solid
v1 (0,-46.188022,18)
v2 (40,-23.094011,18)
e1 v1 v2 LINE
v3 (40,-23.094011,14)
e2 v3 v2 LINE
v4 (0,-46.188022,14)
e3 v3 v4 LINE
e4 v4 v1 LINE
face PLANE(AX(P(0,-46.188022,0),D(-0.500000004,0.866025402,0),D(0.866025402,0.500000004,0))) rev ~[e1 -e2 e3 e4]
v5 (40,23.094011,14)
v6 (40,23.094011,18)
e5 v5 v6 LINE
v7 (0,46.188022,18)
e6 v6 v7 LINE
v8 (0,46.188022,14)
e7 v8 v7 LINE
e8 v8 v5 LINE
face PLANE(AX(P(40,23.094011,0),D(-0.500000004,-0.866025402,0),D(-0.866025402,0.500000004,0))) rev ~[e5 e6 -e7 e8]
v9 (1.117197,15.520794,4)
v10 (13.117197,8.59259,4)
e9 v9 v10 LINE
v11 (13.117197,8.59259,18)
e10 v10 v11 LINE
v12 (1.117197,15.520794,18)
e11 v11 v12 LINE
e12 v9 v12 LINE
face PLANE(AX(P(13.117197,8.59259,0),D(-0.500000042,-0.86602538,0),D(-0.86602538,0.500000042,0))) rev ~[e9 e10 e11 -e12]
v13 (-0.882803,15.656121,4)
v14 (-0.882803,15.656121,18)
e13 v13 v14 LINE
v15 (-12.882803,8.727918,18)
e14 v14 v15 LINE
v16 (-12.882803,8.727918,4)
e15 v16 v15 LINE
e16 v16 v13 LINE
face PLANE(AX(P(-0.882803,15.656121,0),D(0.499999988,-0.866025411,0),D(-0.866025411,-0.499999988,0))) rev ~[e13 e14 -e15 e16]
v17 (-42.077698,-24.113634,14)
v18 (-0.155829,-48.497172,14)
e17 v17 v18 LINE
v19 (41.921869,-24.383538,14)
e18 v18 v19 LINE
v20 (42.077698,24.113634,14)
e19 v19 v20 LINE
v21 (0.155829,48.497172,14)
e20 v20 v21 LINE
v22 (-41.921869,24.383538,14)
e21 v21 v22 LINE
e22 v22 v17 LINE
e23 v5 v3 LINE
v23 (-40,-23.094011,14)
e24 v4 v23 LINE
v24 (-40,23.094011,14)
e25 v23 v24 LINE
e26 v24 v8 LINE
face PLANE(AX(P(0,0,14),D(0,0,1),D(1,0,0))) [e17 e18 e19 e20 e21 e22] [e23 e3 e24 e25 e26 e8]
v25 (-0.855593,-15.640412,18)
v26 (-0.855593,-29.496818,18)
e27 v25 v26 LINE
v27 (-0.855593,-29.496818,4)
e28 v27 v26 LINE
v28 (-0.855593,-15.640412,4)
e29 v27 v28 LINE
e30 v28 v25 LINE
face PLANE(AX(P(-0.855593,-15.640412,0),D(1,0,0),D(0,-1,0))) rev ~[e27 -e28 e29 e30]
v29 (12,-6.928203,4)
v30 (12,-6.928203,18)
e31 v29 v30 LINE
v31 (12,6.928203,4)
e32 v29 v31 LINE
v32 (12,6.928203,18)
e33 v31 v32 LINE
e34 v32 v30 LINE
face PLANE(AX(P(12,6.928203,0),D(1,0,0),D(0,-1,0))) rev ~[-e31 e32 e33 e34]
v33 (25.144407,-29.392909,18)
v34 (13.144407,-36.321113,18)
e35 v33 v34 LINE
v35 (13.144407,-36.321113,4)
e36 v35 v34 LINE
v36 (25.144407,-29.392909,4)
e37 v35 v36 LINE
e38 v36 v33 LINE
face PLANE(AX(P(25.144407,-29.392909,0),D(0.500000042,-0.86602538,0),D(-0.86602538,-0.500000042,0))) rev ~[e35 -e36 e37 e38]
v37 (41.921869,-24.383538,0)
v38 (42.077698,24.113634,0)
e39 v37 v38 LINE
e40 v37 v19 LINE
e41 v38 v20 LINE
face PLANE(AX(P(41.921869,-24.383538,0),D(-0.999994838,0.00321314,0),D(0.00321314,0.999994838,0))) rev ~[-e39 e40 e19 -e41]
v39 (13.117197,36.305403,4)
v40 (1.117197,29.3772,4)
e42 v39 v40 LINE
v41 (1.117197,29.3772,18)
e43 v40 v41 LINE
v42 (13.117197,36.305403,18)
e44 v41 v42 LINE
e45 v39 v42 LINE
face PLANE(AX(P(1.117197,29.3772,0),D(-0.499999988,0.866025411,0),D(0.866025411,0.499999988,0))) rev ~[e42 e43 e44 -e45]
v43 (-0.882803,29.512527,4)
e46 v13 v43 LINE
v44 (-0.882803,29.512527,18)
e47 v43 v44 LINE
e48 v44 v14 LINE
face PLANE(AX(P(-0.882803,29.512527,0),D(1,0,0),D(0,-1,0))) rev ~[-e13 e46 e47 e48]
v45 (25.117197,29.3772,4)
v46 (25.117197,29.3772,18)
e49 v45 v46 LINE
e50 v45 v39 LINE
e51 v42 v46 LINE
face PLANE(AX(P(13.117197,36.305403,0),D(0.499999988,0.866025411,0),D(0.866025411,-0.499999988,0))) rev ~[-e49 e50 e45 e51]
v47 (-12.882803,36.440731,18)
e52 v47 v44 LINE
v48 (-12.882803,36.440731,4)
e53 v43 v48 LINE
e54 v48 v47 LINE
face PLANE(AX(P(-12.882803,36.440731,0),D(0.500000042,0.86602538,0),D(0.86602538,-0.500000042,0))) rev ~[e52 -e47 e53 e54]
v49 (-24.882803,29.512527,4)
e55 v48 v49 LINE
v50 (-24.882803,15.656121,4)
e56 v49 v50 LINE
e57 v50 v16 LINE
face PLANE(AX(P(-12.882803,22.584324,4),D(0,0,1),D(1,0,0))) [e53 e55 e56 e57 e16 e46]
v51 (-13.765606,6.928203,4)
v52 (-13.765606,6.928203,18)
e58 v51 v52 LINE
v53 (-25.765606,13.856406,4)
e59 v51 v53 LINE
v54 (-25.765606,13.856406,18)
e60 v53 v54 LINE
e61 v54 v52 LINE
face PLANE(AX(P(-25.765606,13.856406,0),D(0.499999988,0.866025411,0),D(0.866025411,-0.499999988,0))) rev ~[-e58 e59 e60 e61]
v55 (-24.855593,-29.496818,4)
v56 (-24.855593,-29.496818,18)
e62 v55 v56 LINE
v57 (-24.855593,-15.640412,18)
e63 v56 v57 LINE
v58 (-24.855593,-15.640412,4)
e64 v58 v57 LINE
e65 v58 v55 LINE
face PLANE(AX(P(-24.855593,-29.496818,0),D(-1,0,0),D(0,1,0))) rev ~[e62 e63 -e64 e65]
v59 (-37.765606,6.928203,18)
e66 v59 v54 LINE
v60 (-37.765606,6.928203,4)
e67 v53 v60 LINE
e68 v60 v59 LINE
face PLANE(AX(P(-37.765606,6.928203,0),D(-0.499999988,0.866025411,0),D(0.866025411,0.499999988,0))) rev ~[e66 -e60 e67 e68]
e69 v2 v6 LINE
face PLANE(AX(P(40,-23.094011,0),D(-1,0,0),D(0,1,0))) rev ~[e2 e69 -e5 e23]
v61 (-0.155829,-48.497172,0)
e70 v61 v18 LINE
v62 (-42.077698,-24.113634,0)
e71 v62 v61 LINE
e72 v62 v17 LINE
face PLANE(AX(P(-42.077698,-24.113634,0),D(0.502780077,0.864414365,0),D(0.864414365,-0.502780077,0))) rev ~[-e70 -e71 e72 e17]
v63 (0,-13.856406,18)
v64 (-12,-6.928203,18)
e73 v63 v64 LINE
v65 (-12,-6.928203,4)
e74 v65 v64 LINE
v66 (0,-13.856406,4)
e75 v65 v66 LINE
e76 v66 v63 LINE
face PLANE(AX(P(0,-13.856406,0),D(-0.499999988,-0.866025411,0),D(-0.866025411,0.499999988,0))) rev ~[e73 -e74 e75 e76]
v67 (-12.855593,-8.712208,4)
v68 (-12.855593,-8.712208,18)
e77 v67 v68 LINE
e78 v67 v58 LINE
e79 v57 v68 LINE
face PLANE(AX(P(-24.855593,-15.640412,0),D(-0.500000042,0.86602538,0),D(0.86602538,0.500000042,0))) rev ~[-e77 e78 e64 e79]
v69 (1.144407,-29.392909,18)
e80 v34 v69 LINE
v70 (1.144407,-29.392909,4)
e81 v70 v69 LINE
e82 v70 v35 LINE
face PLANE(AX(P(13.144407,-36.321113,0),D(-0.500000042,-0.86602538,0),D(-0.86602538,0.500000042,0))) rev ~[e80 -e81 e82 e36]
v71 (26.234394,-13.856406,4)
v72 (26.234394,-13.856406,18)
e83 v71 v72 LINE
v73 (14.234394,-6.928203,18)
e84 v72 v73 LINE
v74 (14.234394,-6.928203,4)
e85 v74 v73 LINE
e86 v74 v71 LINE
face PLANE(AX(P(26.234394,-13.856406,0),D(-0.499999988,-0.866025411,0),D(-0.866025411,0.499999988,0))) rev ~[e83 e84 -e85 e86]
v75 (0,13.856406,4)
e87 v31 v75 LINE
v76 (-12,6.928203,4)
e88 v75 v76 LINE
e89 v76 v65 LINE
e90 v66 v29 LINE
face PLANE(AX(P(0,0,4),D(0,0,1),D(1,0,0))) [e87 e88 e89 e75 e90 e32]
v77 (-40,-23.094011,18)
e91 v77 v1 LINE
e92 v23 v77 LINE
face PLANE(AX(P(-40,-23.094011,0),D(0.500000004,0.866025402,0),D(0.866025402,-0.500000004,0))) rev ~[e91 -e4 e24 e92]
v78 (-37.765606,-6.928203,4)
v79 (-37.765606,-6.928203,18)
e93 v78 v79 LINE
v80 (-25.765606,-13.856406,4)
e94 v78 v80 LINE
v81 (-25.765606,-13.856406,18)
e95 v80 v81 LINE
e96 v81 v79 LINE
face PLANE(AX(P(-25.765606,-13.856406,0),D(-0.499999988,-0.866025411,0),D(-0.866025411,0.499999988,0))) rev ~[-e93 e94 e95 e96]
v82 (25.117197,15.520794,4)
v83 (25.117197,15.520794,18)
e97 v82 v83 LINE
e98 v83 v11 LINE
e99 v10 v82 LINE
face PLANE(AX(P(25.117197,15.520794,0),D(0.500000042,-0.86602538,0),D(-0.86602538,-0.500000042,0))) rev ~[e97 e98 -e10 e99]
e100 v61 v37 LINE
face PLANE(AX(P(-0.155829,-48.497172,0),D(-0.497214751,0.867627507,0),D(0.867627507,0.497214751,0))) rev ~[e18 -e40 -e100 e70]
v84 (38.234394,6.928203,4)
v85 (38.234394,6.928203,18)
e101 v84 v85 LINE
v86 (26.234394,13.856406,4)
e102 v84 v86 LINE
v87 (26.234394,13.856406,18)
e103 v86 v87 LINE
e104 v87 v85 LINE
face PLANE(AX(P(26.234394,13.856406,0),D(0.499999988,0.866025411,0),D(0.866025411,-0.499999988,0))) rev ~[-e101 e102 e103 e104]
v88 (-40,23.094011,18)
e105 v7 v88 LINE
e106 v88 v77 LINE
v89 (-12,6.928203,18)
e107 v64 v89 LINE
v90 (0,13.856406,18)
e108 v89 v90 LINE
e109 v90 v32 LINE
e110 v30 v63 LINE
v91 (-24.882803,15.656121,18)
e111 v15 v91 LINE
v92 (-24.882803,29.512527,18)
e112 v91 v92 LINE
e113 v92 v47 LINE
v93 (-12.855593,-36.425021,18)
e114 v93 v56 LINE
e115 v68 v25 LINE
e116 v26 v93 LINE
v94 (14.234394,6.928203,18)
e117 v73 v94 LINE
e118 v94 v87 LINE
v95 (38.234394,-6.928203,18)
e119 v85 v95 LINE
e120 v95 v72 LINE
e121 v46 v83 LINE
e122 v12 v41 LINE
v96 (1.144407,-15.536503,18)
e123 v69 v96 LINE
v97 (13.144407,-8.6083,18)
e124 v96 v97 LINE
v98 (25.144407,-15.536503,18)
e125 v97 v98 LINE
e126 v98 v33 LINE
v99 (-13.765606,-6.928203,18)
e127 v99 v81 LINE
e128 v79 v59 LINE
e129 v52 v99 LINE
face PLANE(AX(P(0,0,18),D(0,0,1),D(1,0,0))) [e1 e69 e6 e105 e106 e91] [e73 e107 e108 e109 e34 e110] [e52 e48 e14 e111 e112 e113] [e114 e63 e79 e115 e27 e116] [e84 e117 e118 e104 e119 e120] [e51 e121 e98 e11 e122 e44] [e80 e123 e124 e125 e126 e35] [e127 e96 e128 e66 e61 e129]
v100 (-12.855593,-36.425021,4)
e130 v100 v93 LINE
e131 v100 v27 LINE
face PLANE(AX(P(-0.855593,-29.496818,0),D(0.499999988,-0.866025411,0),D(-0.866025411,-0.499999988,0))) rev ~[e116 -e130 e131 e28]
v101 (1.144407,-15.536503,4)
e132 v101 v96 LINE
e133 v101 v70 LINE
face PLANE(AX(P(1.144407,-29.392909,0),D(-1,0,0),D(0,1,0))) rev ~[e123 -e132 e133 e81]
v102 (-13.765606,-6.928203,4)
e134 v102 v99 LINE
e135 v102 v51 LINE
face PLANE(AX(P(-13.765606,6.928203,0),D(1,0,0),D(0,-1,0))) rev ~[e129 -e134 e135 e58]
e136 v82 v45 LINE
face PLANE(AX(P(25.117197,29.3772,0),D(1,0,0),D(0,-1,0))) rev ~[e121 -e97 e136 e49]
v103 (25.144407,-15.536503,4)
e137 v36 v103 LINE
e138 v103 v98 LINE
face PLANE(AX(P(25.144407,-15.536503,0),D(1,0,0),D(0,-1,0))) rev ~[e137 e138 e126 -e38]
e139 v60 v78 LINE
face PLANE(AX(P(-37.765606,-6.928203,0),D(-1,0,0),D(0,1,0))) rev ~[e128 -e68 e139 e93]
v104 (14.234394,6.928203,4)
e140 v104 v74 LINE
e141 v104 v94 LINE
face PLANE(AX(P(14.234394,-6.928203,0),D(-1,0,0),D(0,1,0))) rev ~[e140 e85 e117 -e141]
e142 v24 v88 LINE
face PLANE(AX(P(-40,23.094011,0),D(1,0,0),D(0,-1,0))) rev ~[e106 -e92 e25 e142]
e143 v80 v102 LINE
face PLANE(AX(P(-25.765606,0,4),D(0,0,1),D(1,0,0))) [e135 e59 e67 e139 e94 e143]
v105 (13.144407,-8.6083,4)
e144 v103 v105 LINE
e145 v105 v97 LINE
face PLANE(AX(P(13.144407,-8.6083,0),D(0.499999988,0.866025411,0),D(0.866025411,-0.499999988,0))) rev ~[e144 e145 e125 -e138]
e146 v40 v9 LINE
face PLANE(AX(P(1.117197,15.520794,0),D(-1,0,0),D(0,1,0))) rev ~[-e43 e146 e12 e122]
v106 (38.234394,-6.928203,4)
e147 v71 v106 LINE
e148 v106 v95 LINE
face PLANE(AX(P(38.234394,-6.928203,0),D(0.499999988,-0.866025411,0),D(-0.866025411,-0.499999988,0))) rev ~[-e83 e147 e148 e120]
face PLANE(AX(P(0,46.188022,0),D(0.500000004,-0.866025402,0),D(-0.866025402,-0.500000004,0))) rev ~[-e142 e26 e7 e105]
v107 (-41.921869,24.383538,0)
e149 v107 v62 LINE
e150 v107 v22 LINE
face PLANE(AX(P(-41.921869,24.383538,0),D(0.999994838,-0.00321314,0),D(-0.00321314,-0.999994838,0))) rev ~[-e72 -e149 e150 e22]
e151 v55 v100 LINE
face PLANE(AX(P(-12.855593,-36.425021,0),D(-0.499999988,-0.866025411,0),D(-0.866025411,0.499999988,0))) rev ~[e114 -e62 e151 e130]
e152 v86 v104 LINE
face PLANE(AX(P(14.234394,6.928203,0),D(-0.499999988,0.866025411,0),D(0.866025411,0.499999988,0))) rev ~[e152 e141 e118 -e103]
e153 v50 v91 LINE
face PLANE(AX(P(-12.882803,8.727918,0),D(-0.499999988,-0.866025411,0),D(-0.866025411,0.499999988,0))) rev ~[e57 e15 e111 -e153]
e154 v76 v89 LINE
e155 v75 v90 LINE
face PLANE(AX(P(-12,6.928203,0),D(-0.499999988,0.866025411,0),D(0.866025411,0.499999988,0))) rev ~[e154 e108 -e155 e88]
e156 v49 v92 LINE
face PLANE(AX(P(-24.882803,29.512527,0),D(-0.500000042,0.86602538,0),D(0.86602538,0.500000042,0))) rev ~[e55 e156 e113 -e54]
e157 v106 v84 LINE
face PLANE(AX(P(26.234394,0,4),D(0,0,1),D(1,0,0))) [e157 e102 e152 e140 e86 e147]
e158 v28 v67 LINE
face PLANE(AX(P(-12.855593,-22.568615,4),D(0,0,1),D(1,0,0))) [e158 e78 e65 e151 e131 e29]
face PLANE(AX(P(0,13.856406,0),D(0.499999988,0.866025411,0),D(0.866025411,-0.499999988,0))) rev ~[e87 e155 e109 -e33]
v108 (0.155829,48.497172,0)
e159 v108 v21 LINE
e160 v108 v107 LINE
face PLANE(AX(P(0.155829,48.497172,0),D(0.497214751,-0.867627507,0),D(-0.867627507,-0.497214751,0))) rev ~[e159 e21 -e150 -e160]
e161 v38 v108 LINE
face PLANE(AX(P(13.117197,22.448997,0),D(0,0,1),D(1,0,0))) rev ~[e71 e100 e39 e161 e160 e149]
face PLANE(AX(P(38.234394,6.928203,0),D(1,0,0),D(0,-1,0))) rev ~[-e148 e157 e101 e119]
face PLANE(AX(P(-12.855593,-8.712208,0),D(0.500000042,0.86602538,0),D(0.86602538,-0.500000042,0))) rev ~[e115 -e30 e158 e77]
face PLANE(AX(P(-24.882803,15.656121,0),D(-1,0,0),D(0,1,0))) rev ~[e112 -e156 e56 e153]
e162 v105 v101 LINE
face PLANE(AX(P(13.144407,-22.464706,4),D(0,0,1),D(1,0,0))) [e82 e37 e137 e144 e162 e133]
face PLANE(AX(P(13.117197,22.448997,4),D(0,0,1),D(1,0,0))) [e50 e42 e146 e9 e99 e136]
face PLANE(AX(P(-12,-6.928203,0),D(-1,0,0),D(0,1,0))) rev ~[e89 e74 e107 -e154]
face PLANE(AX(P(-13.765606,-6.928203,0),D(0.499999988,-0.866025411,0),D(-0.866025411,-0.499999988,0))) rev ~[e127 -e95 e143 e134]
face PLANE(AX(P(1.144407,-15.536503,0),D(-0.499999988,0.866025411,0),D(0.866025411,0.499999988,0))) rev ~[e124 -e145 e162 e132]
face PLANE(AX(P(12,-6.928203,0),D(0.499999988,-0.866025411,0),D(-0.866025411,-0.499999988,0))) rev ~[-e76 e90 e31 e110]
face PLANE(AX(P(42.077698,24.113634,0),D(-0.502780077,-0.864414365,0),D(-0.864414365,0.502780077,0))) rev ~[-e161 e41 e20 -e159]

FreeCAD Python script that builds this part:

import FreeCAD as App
import Part
import Sketcher
from FreeCAD import Vector
Q = App.Units.Quantity

doc = App.newDocument("Part")
params = doc.addObject("Spreadsheet::Sheet", "Params")
for row, (alias, value) in enumerate([
    ("pad1_length", "14 mm"),
    ("pad2_length", "18 mm"),
    ("pad3_length", "4 mm"),
], start=1):
    params.set(f"A{row}", alias)
    params.set(f"B{row}", "=" + value)
    params.setAlias(f"B{row}", alias)

body = doc.addObject("PartDesign::Body", "Body")

# Sketch on XY plane
sketch1 = body.newObject("Sketcher::SketchObject", "Sketch")
sketch1.AttachmentSupport = (doc.getObject("XY_Plane"), [""])
sketch1.MapMode = "FlatFace"
sketch1.addGeometry([
    Part.LineSegment(Vector(42.077698, 24.113634, 0), Vector(0.155829, 48.497172, 0)),  # 0
    Part.LineSegment(Vector(0.155829, 48.497172, 0), Vector(-41.921869, 24.383538, 0)),  # 1
    Part.LineSegment(Vector(-41.921869, 24.383538, 0), Vector(-42.077698, -24.113634, 0)),  # 2
    Part.LineSegment(Vector(-42.077698, -24.113634, 0), Vector(-0.155829, -48.497172, 0)),  # 3
    Part.LineSegment(Vector(-0.155829, -48.497172, 0), Vector(41.921869, -24.383538, 0)),  # 4
    Part.LineSegment(Vector(41.921869, -24.383538, 0), Vector(42.077698, 24.113634, 0)),  # 5
    Part.LineSegment(Vector(-40, -23.094011, 0), Vector(-40, 23.094011, 0)),  # 6
    Part.LineSegment(Vector(-40, 23.094011, 0), Vector(0, 46.188022, 0)),  # 7
    Part.LineSegment(Vector(0, 46.188022, 0), Vector(40, 23.094011, 0)),  # 8
    Part.LineSegment(Vector(40, 23.094011, 0), Vector(40, -23.094011, 0)),  # 9
    Part.LineSegment(Vector(40, -23.094011, 0), Vector(0, -46.188022, 0)),  # 10
    Part.LineSegment(Vector(0, -46.188022, 0), Vector(-40, -23.094011, 0)),  # 11
], False)
sketch1.addConstraint([
    Sketcher.Constraint("Coincident", 0, 2, 1, 1),
    Sketcher.Constraint("Coincident", 1, 2, 2, 1),
    Sketcher.Constraint("Coincident", 2, 2, 3, 1),
    Sketcher.Constraint("Coincident", 3, 2, 4, 1),
    Sketcher.Constraint("Coincident", 4, 2, 5, 1),
    Sketcher.Constraint("Coincident", 5, 2, 0, 1),
    Sketcher.Constraint("Coincident", 6, 2, 7, 1),
    Sketcher.Constraint("Coincident", 7, 2, 8, 1),
    Sketcher.Constraint("Coincident", 8, 2, 9, 1),
    Sketcher.Constraint("Coincident", 9, 2, 10, 1),
    Sketcher.Constraint("Coincident", 10, 2, 11, 1),
    Sketcher.Constraint("Coincident", 11, 2, 6, 1),
    Sketcher.Constraint("Vertical", 6),
    Sketcher.Constraint("Vertical", 9),
    Sketcher.Constraint("Symmetric", 0, 2, 3, 2, -1, 1),
    Sketcher.Constraint("Symmetric", 1, 2, 4, 2, -1, 1),
    Sketcher.Constraint("Symmetric", 2, 2, 5, 2, -1, 1),
    Sketcher.Constraint("Symmetric", 6, 2, 9, 2, -1, 1),
    Sketcher.Constraint("Symmetric", 7, 2, 10, 2, -1, 1),
    Sketcher.Constraint("PointOnObject", 7, 2, -2),
    Sketcher.Constraint("Parallel", 8, 11),
    Sketcher.Constraint("Horizontal", 6, 2, 8, 2),
    Sketcher.Constraint("Equal", 0, 1),
    Sketcher.Constraint("Equal", 1, 2),
    Sketcher.Constraint("Angle", 7, Q("30 deg")),
    Sketcher.Constraint("DistanceX", 6, 2, -1, 1, Q("40 mm")),
    Sketcher.Constraint("DistanceY", 6, 1, 6, 2, Q("46.188022 mm")),
    Sketcher.Constraint("DistanceX", 6, 2, 5, 2, Q("82.077698 mm")),
    Sketcher.Constraint("DistanceX", -1, 1, 0, 2, Q("0.155829 mm")),
    Sketcher.Constraint("DistanceX", 1, 2, -1, 1, Q("41.921869 mm")),
    Sketcher.Constraint("DistanceY", -1, 1, 1, 2, Q("24.383538 mm")),
])
pad1 = body.newObject("PartDesign::Pad", "Pad")
pad1.Profile = sketch1
pad1.setExpression("Length", "Params.pad1_length")

# Sketch on XY plane
sketch2 = body.newObject("Sketcher::SketchObject", "Sketch001")
sketch2.AttachmentSupport = (doc.getObject("XY_Plane"), [""])
sketch2.MapMode = "FlatFace"
sketch2.addGeometry([
    Part.LineSegment(Vector(40, 23.094011, 0), Vector(0, 46.188022, 0)),  # 0
    Part.LineSegment(Vector(0, 46.188022, 0), Vector(-40, 23.094011, 0)),  # 1
    Part.LineSegment(Vector(-40, 23.094011, 0), Vector(-40, -23.094011, 0)),  # 2
    Part.LineSegment(Vector(-40, -23.094011, 0), Vector(0, -46.188022, 0)),  # 3
    Part.LineSegment(Vector(0, -46.188022, 0), Vector(40, -23.094011, 0)),  # 4
    Part.LineSegment(Vector(40, -23.094011, 0), Vector(40, 23.094011, 0)),  # 5
    Part.LineSegment(Vector(-24.855593, -15.640412, 0), Vector(-12.855593, -8.712208, 0)),  # 6
    Part.LineSegment(Vector(-12.855593, -8.712208, 0), Vector(-0.855593, -15.640412, 0)),  # 7
    Part.LineSegment(Vector(-0.855593, -15.640412, 0), Vector(-0.855593, -29.496818, 0)),  # 8
    Part.LineSegment(Vector(-0.855593, -29.496818, 0), Vector(-12.855593, -36.425021, 0)),  # 9
    Part.LineSegment(Vector(-12.855593, -36.425021, 0), Vector(-24.855593, -29.496818, 0)),  # 10
    Part.LineSegment(Vector(-24.855593, -29.496818, 0), Vector(-24.855593, -15.640412, 0)),  # 11
    Part.LineSegment(Vector(-37.765606, 6.928203, 0), Vector(-25.765606, 13.856406, 0)),  # 12
    Part.LineSegment(Vector(-25.765606, 13.856406, 0), Vector(-13.765606, 6.928203, 0)),  # 13
    Part.LineSegment(Vector(-13.765606, 6.928203, 0), Vector(-13.765606, -6.928203, 0)),  # 14
    Part.LineSegment(Vector(-13.765606, -6.928203, 0), Vector(-25.765606, -13.856406, 0)),  # 15
    Part.LineSegment(Vector(-25.765606, -13.856406, 0), Vector(-37.765606, -6.928203, 0)),  # 16
    Part.LineSegment(Vector(-37.765606, -6.928203, 0), Vector(-37.765606, 6.928203, 0)),  # 17
    Part.LineSegment(Vector(-12, 6.928203, 0), Vector(0, 13.856406, 0)),  # 18
    Part.LineSegment(Vector(0, 13.856406, 0), Vector(12, 6.928203, 0)),  # 19
    Part.LineSegment(Vector(12, 6.928203, 0), Vector(12, -6.928203, 0)),  # 20
    Part.LineSegment(Vector(12, -6.928203, 0), Vector(0, -13.856406, 0)),  # 21
    Part.LineSegment(Vector(0, -13.856406, 0), Vector(-12, -6.928203, 0)),  # 22
    Part.LineSegment(Vector(-12, -6.928203, 0), Vector(-12, 6.928203, 0)),  # 23
    Part.LineSegment(Vector(1.144407, -15.536503, 0), Vector(13.144407, -8.6083, 0)),  # 24
    Part.LineSegment(Vector(13.144407, -8.6083, 0), Vector(25.144407, -15.536503, 0)),  # 25
    Part.LineSegment(Vector(25.144407, -15.536503, 0), Vector(25.144407, -29.392909, 0)),  # 26
    Part.LineSegment(Vector(25.144407, -29.392909, 0), Vector(13.144407, -36.321113, 0)),  # 27
    Part.LineSegment(Vector(13.144407, -36.321113, 0), Vector(1.144407, -29.392909, 0)),  # 28
    Part.LineSegment(Vector(1.144407, -29.392909, 0), Vector(1.144407, -15.536503, 0)),  # 29
    Part.LineSegment(Vector(14.234394, 6.928203, 0), Vector(26.234394, 13.856406, 0)),  # 30
    Part.LineSegment(Vector(26.234394, 13.856406, 0), Vector(38.234394, 6.928203, 0)),  # 31
    Part.LineSegment(Vector(38.234394, 6.928203, 0), Vector(38.234394, -6.928203, 0)),  # 32
    Part.LineSegment(Vector(38.234394, -6.928203, 0), Vector(26.234394, -13.856406, 0)),  # 33
    Part.LineSegment(Vector(26.234394, -13.856406, 0), Vector(14.234394, -6.928203, 0)),  # 34
    Part.LineSegment(Vector(14.234394, -6.928203, 0), Vector(14.234394, 6.928203, 0)),  # 35
    Part.LineSegment(Vector(-24.882803, 29.512527, 0), Vector(-12.882803, 36.440731, 0)),  # 36
    Part.LineSegment(Vector(-12.882803, 36.440731, 0), Vector(-0.882803, 29.512527, 0)),  # 37
    Part.LineSegment(Vector(-0.882803, 29.512527, 0), Vector(-0.882803, 15.656121, 0)),  # 38
    Part.LineSegment(Vector(-0.882803, 15.656121, 0), Vector(-12.882803, 8.727918, 0)),  # 39
    Part.LineSegment(Vector(-12.882803, 8.727918, 0), Vector(-24.882803, 15.656121, 0)),  # 40
    Part.LineSegment(Vector(-24.882803, 15.656121, 0), Vector(-24.882803, 29.512527, 0)),  # 41
    Part.LineSegment(Vector(1.117197, 29.3772, 0), Vector(13.117197, 36.305403, 0)),  # 42
    Part.LineSegment(Vector(13.117197, 36.305403, 0), Vector(25.117197, 29.3772, 0)),  # 43
    Part.LineSegment(Vector(25.117197, 29.3772, 0), Vector(25.117197, 15.520794, 0)),  # 44
    Part.LineSegment(Vector(25.117197, 15.520794, 0), Vector(13.117197, 8.59259, 0)),  # 45
    Part.LineSegment(Vector(13.117197, 8.59259, 0), Vector(1.117197, 15.520794, 0)),  # 46
    Part.LineSegment(Vector(1.117197, 15.520794, 0), Vector(1.117197, 29.3772, 0)),  # 47
], False)
sketch2.addConstraint([
    Sketcher.Constraint("Coincident", 0, 2, 1, 1),
    Sketcher.Constraint("Coincident", 1, 2, 2, 1),
    Sketcher.Constraint("Coincident", 2, 2, 3, 1),
    Sketcher.Constraint("Coincident", 3, 2, 4, 1),
    Sketcher.Constraint("Coincident", 4, 2, 5, 1),
    Sketcher.Constraint("Coincident", 5, 2, 0, 1),
    Sketcher.Constraint("Coincident", 6, 2, 7, 1),
    Sketcher.Constraint("Coincident", 7, 2, 8, 1),
    Sketcher.Constraint("Coincident", 8, 2, 9, 1),
    Sketcher.Constraint("Coincident", 9, 2, 10, 1),
    Sketcher.Constraint("Coincident", 10, 2, 11, 1),
    Sketcher.Constraint("Coincident", 11, 2, 6, 1),
    Sketcher.Constraint("Coincident", 12, 2, 13, 1),
    Sketcher.Constraint("Coincident", 13, 2, 14, 1),
    Sketcher.Constraint("Coincident", 14, 2, 15, 1),
    Sketcher.Constraint("Coincident", 15, 2, 16, 1),
    Sketcher.Constraint("Coincident", 16, 2, 17, 1),
    Sketcher.Constraint("Coincident", 17, 2, 12, 1),
    Sketcher.Constraint("Coincident", 18, 2, 19, 1),
    Sketcher.Constraint("Coincident", 19, 2, 20, 1),
    Sketcher.Constraint("Coincident", 20, 2, 21, 1),
    Sketcher.Constraint("Coincident", 21, 2, 22, 1),
    Sketcher.Constraint("Coincident", 22, 2, 23, 1),
    Sketcher.Constraint("Coincident", 23, 2, 18, 1),
    Sketcher.Constraint("Coincident", 24, 2, 25, 1),
    Sketcher.Constraint("Coincident", 25, 2, 26, 1),
    Sketcher.Constraint("Coincident", 26, 2, 27, 1),
    Sketcher.Constraint("Coincident", 27, 2, 28, 1),
    Sketcher.Constraint("Coincident", 28, 2, 29, 1),
    Sketcher.Constraint("Coincident", 29, 2, 24, 1),
    Sketcher.Constraint("Coincident", 30, 2, 31, 1),
    Sketcher.Constraint("Coincident", 31, 2, 32, 1),
    Sketcher.Constraint("Coincident", 32, 2, 33, 1),
    Sketcher.Constraint("Coincident", 33, 2, 34, 1),
    Sketcher.Constraint("Coincident", 34, 2, 35, 1),
    Sketcher.Constraint("Coincident", 35, 2, 30, 1),
    Sketcher.Constraint("Coincident", 36, 2, 37, 1),
    Sketcher.Constraint("Coincident", 37, 2, 38, 1),
    Sketcher.Constraint("Coincident", 38, 2, 39, 1),
    Sketcher.Constraint("Coincident", 39, 2, 40, 1),
    Sketcher.Constraint("Coincident", 40, 2, 41, 1),
    Sketcher.Constraint("Coincident", 41, 2, 36, 1),
    Sketcher.Constraint("Coincident", 42, 2, 43, 1),
    Sketcher.Constraint("Coincident", 43, 2, 44, 1),
    Sketcher.Constraint("Coincident", 44, 2, 45, 1),
    Sketcher.Constraint("Coincident", 45, 2, 46, 1),
    Sketcher.Constraint("Coincident", 46, 2, 47, 1),
    Sketcher.Constraint("Coincident", 47, 2, 42, 1),
    Sketcher.Constraint("Vertical", 2),
    Sketcher.Constraint("Vertical", 5),
    Sketcher.Constraint("Vertical", 8),
    Sketcher.Constraint("Vertical", 11),
    Sketcher.Constraint("Vertical", 14),
    Sketcher.Constraint("Vertical", 17),
    Sketcher.Constraint("Vertical", 20),
    Sketcher.Constraint("Vertical", 23),
    Sketcher.Constraint("Vertical", 26),
    Sketcher.Constraint("Vertical", 29),
    Sketcher.Constraint("Vertical", 32),
    Sketcher.Constraint("Vertical", 35),
    Sketcher.Constraint("Vertical", 38),
    Sketcher.Constraint("Vertical", 41),
    Sketcher.Constraint("Vertical", 44),
    Sketcher.Constraint("Vertical", 47),
    Sketcher.Constraint("Symmetric", 0, 2, 3, 2, -1, 1),
    Sketcher.Constraint("Symmetric", 1, 2, 4, 2, -1, 1),
    Sketcher.Constraint("Symmetric", 18, 2, 21, 2, -1, 1),
    Sketcher.Constraint("Symmetric", 19, 2, 22, 2, -1, 1),
    Sketcher.Constraint("Symmetric", 12, 2, 15, 2, -1),
    Sketcher.Constraint("Symmetric", 30, 2, 33, 2, -1),
    Sketcher.Constraint("PointOnObject", 0, 2, -2),
    Sketcher.Constraint("PointOnObject", 18, 2, -2),
    Sketcher.Constraint("Parallel", 0, 3),
    Sketcher.Constraint("Parallel", 4, 6),
    Sketcher.Constraint("Parallel", 3, 7),
    Sketcher.Constraint("Parallel", 6, 9),
    Sketcher.Constraint("Parallel", 7, 10),
    Sketcher.Constraint("Parallel", 9, 12),
    Sketcher.Constraint("Parallel", 10, 13),
    Sketcher.Constraint("Parallel", 12, 15),
    Sketcher.Constraint("Parallel", 13, 16),
    Sketcher.Constraint("Parallel", 15, 18),
    Sketcher.Constraint("Parallel", 16, 19),
    Sketcher.Constraint("Parallel", 18, 21),
    Sketcher.Constraint("Parallel", 21, 24),
    Sketcher.Constraint("Parallel", 22, 25),
    Sketcher.Constraint("Parallel", 24, 27),
    Sketcher.Constraint("Parallel", 25, 28),
    Sketcher.Constraint("Parallel", 27, 30),
    Sketcher.Constraint("Parallel", 28, 31),
    Sketcher.Constraint("Parallel", 30, 33),
    Sketcher.Constraint("Parallel", 31, 34),
    Sketcher.Constraint("Parallel", 33, 36),
    Sketcher.Constraint("Parallel", 34, 37),
    Sketcher.Constraint("Parallel", 36, 39),
    Sketcher.Constraint("Parallel", 37, 40),
    Sketcher.Constraint("Parallel", 39, 42),
    Sketcher.Constraint("Parallel", 40, 43),
    Sketcher.Constraint("Parallel", 42, 45),
    Sketcher.Constraint("Parallel", 43, 46),
    Sketcher.Constraint("Horizontal", 2, 2, 4, 2),
    Sketcher.Constraint("Horizontal", 8, 2, 10, 2),
    Sketcher.Constraint("Horizontal", 7, 2, 11, 2),
    Sketcher.Constraint("Horizontal", 14, 2, 16, 2),
    Sketcher.Constraint("Horizontal", 12, 2, 18, 2),
    Sketcher.Constraint("Horizontal", 17, 2, 19, 2),
    Sketcher.Constraint("Horizontal", 26, 2, 28, 2),
    Sketcher.Constraint("Horizontal", 25, 2, 29, 2),
    Sketcher.Constraint("Horizontal", 18, 2, 30, 2),
    Sketcher.Constraint("Horizontal", 23, 2, 31, 2),
    Sketcher.Constraint("Horizontal", 32, 2, 34, 2),
    Sketcher.Constraint("Horizontal", 38, 2, 40, 2),
    Sketcher.Constraint("Horizontal", 37, 2, 41, 2),
    Sketcher.Constraint("Horizontal", 44, 2, 46, 2),
    Sketcher.Constraint("Horizontal", 43, 2, 47, 2),
    Sketcher.Constraint("Equal", 11, 14),
    Sketcher.Constraint("Equal", 23, 26),
    Sketcher.Constraint("Equal", 35, 38),
    Sketcher.Constraint("Equal", 41, 44),
    Sketcher.Constraint("Equal", 10, 12),
    Sketcher.Constraint("Equal", 22, 24),
    Sketcher.Constraint("Equal", 34, 36),
    Sketcher.Constraint("Equal", 40, 42),
    Sketcher.Constraint("Angle", 0, Q("150 deg")),
    Sketcher.Constraint("DistanceX", 1, 2, -1, 1, Q("40 mm")),
    Sketcher.Constraint("DistanceX", -1, 1, 19, 2, Q("12 mm")),
    Sketcher.Constraint("DistanceX", 7, 2, 24, 2, Q("14 mm")),
    Sketcher.Constraint("DistanceX", 37, 2, 42, 2, Q("14 mm")),
    Sketcher.Constraint("DistanceY", 3, 2, 9, 2, Q("9.763001 mm")),
    Sketcher.Constraint("DistanceY", 2, 2, 2, 1, Q("46.188022 mm")),
    Sketcher.Constraint("DistanceY", 24, 2, -1, 1, Q("8.6083 mm")),
    Sketcher.Constraint("DistanceY", -1, 1, 43, 2, Q("29.3772 mm")),
    Sketcher.Constraint("DistanceY", 2, 2, 7, 2, Q("7.453599 mm")),
    Sketcher.Constraint("DistanceY", -1, 1, 36, 2, Q("36.440731 mm")),
    Sketcher.Constraint("DistanceX", 6, 2, -1, 1, Q("12.855593 mm")),
    Sketcher.Constraint("DistanceX", 12, 2, -1, 1, Q("25.765606 mm")),
    Sketcher.Constraint("DistanceX", -1, 1, 30, 2, Q("26.234394 mm")),
    Sketcher.Constraint("DistanceX", 36, 2, -1, 1, Q("12.882803 mm")),
])
pad2 = body.newObject("PartDesign::Pad", "Pad001")
pad2.Profile = sketch2
pad2.setExpression("Length", "Params.pad2_length")

# Sketch on XY plane
sketch3 = body.newObject("Sketcher::SketchObject", "Sketch002")
sketch3.AttachmentSupport = (doc.getObject("XY_Plane"), [""])
sketch3.MapMode = "FlatFace"
sketch3.addGeometry([
    Part.LineSegment(Vector(25.117197, 15.520794, 0), Vector(25.117197, 29.3772, 0)),  # 0
    Part.LineSegment(Vector(25.117197, 29.3772, 0), Vector(13.117197, 36.305403, 0)),  # 1
    Part.LineSegment(Vector(13.117197, 36.305403, 0), Vector(1.117197, 29.3772, 0)),  # 2
    Part.LineSegment(Vector(1.117197, 29.3772, 0), Vector(1.117197, 15.520794, 0)),  # 3
    Part.LineSegment(Vector(1.117197, 15.520794, 0), Vector(13.117197, 8.59259, 0)),  # 4
    Part.LineSegment(Vector(13.117197, 8.59259, 0), Vector(25.117197, 15.520794, 0)),  # 5
    Part.LineSegment(Vector(-0.882803, 15.656121, 0), Vector(-0.882803, 29.512527, 0)),  # 6
    Part.LineSegment(Vector(-0.882803, 29.512527, 0), Vector(-12.882803, 36.440731, 0)),  # 7
    Part.LineSegment(Vector(-12.882803, 36.440731, 0), Vector(-24.882803, 29.512527, 0)),  # 8
    Part.LineSegment(Vector(-24.882803, 29.512527, 0), Vector(-24.882803, 15.656121, 0)),  # 9
    Part.LineSegment(Vector(-24.882803, 15.656121, 0), Vector(-12.882803, 8.727918, 0)),  # 10
    Part.LineSegment(Vector(-12.882803, 8.727918, 0), Vector(-0.882803, 15.656121, 0)),  # 11
    Part.LineSegment(Vector(-13.765606, -6.928203, 0), Vector(-13.765606, 6.928203, 0)),  # 12
    Part.LineSegment(Vector(-13.765606, 6.928203, 0), Vector(-25.765606, 13.856406, 0)),  # 13
    Part.LineSegment(Vector(-25.765606, 13.856406, 0), Vector(-37.765606, 6.928203, 0)),  # 14
    Part.LineSegment(Vector(-37.765606, 6.928203, 0), Vector(-37.765606, -6.928203, 0)),  # 15
    Part.LineSegment(Vector(-37.765606, -6.928203, 0), Vector(-25.765606, -13.856406, 0)),  # 16
    Part.LineSegment(Vector(-25.765606, -13.856406, 0), Vector(-13.765606, -6.928203, 0)),  # 17
    Part.LineSegment(Vector(12, -6.928203, 0), Vector(12, 6.928203, 0)),  # 18
    Part.LineSegment(Vector(12, 6.928203, 0), Vector(0, 13.856406, 0)),  # 19
    Part.LineSegment(Vector(0, 13.856406, 0), Vector(-12, 6.928203, 0)),  # 20
    Part.LineSegment(Vector(-12, 6.928203, 0), Vector(-12, -6.928203, 0)),  # 21
    Part.LineSegment(Vector(-12, -6.928203, 0), Vector(0, -13.856406, 0)),  # 22
    Part.LineSegment(Vector(0, -13.856406, 0), Vector(12, -6.928203, 0)),  # 23
    Part.LineSegment(Vector(38.234394, -6.928203, 0), Vector(38.234394, 6.928203, 0)),  # 24
    Part.LineSegment(Vector(38.234394, 6.928203, 0), Vector(26.234394, 13.856406, 0)),  # 25
    Part.LineSegment(Vector(26.234394, 13.856406, 0), Vector(14.234394, 6.928203, 0)),  # 26
    Part.LineSegment(Vector(14.234394, 6.928203, 0), Vector(14.234394, -6.928203, 0)),  # 27
    Part.LineSegment(Vector(14.234394, -6.928203, 0), Vector(26.234394, -13.856406, 0)),  # 28
    Part.LineSegment(Vector(26.234394, -13.856406, 0), Vector(38.234394, -6.928203, 0)),  # 29
    Part.LineSegment(Vector(25.144407, -29.392909, 0), Vector(25.144407, -15.536503, 0)),  # 30
    Part.LineSegment(Vector(25.144407, -15.536503, 0), Vector(13.144407, -8.6083, 0)),  # 31
    Part.LineSegment(Vector(13.144407, -8.6083, 0), Vector(1.144407, -15.536503, 0)),  # 32
    Part.LineSegment(Vector(1.144407, -15.536503, 0), Vector(1.144407, -29.392909, 0)),  # 33
    Part.LineSegment(Vector(1.144407, -29.392909, 0), Vector(13.144407, -36.321113, 0)),  # 34
    Part.LineSegment(Vector(13.144407, -36.321113, 0), Vector(25.144407, -29.392909, 0)),  # 35
    Part.LineSegment(Vector(-0.855593, -29.496818, 0), Vector(-0.855593, -15.640412, 0)),  # 36
    Part.LineSegment(Vector(-0.855593, -15.640412, 0), Vector(-12.855593, -8.712208, 0)),  # 37
    Part.LineSegment(Vector(-12.855593, -8.712208, 0), Vector(-24.855593, -15.640412, 0)),  # 38
    Part.LineSegment(Vector(-24.855593, -15.640412, 0), Vector(-24.855593, -29.496818, 0)),  # 39
    Part.LineSegment(Vector(-24.855593, -29.496818, 0), Vector(-12.855593, -36.425021, 0)),  # 40
    Part.LineSegment(Vector(-12.855593, -36.425021, 0), Vector(-0.855593, -29.496818, 0)),  # 41
], False)
sketch3.addConstraint([
    Sketcher.Constraint("Coincident", 0, 2, 1, 1),
    Sketcher.Constraint("Coincident", 1, 2, 2, 1),
    Sketcher.Constraint("Coincident", 2, 2, 3, 1),
    Sketcher.Constraint("Coincident", 3, 2, 4, 1),
    Sketcher.Constraint("Coincident", 4, 2, 5, 1),
    Sketcher.Constraint("Coincident", 5, 2, 0, 1),
    Sketcher.Constraint("Coincident", 6, 2, 7, 1),
    Sketcher.Constraint("Coincident", 7, 2, 8, 1),
    Sketcher.Constraint("Coincident", 8, 2, 9, 1),
    Sketcher.Constraint("Coincident", 9, 2, 10, 1),
    Sketcher.Constraint("Coincident", 10, 2, 11, 1),
    Sketcher.Constraint("Coincident", 11, 2, 6, 1),
    Sketcher.Constraint("Coincident", 12, 2, 13, 1),
    Sketcher.Constraint("Coincident", 13, 2, 14, 1),
    Sketcher.Constraint("Coincident", 14, 2, 15, 1),
    Sketcher.Constraint("Coincident", 15, 2, 16, 1),
    Sketcher.Constraint("Coincident", 16, 2, 17, 1),
    Sketcher.Constraint("Coincident", 17, 2, 12, 1),
    Sketcher.Constraint("Coincident", 18, 2, 19, 1),
    Sketcher.Constraint("Coincident", 19, 2, 20, 1),
    Sketcher.Constraint("Coincident", 20, 2, 21, 1),
    Sketcher.Constraint("Coincident", 21, 2, 22, 1),
    Sketcher.Constraint("Coincident", 22, 2, 23, 1),
    Sketcher.Constraint("Coincident", 23, 2, 18, 1),
    Sketcher.Constraint("Coincident", 24, 2, 25, 1),
    Sketcher.Constraint("Coincident", 25, 2, 26, 1),
    Sketcher.Constraint("Coincident", 26, 2, 27, 1),
    Sketcher.Constraint("Coincident", 27, 2, 28, 1),
    Sketcher.Constraint("Coincident", 28, 2, 29, 1),
    Sketcher.Constraint("Coincident", 29, 2, 24, 1),
    Sketcher.Constraint("Coincident", 30, 2, 31, 1),
    Sketcher.Constraint("Coincident", 31, 2, 32, 1),
    Sketcher.Constraint("Coincident", 32, 2, 33, 1),
    Sketcher.Constraint("Coincident", 33, 2, 34, 1),
    Sketcher.Constraint("Coincident", 34, 2, 35, 1),
    Sketcher.Constraint("Coincident", 35, 2, 30, 1),
    Sketcher.Constraint("Coincident", 36, 2, 37, 1),
    Sketcher.Constraint("Coincident", 37, 2, 38, 1),
    Sketcher.Constraint("Coincident", 38, 2, 39, 1),
    Sketcher.Constraint("Coincident", 39, 2, 40, 1),
    Sketcher.Constraint("Coincident", 40, 2, 41, 1),
    Sketcher.Constraint("Coincident", 41, 2, 36, 1),
    Sketcher.Constraint("Vertical", 0),
    Sketcher.Constraint("Vertical", 3),
    Sketcher.Constraint("Vertical", 6),
    Sketcher.Constraint("Vertical", 9),
    Sketcher.Constraint("Vertical", 12),
    Sketcher.Constraint("Vertical", 15),
    Sketcher.Constraint("Vertical", 18),
    Sketcher.Constraint("Vertical", 21),
    Sketcher.Constraint("Vertical", 24),
    Sketcher.Constraint("Vertical", 27),
    Sketcher.Constraint("Vertical", 30),
    Sketcher.Constraint("Vertical", 33),
    Sketcher.Constraint("Vertical", 36),
    Sketcher.Constraint("Vertical", 39),
    Sketcher.Constraint("Symmetric", 18, 2, 21, 2, -1, 1),
    Sketcher.Constraint("Symmetric", 19, 2, 22, 2, -1, 1),
    Sketcher.Constraint("Symmetric", 13, 2, 16, 2, -1),
    Sketcher.Constraint("Symmetric", 25, 2, 28, 2, -1),
    Sketcher.Constraint("PointOnObject", 19, 2, -2),
    Sketcher.Constraint("Parallel", 1, 4),
    Sketcher.Constraint("Parallel", 2, 5),
    Sketcher.Constraint("Parallel", 4, 7),
    Sketcher.Constraint("Parallel", 5, 8),
    Sketcher.Constraint("Parallel", 7, 10),
    Sketcher.Constraint("Parallel", 8, 11),
    Sketcher.Constraint("Parallel", 10, 13),
    Sketcher.Constraint("Parallel", 11, 14),
    Sketcher.Constraint("Parallel", 13, 16),
    Sketcher.Constraint("Parallel", 14, 17),
    Sketcher.Constraint("Parallel", 16, 19),
    Sketcher.Constraint("Parallel", 17, 20),
    Sketcher.Constraint("Parallel", 20, 23),
    Sketcher.Constraint("Parallel", 22, 25),
    Sketcher.Constraint("Parallel", 23, 26),
    Sketcher.Constraint("Parallel", 25, 28),
    Sketcher.Constraint("Parallel", 26, 29),
    Sketcher.Constraint("Parallel", 28, 31),
    Sketcher.Constraint("Parallel", 29, 32),
    Sketcher.Constraint("Parallel", 31, 34),
    Sketcher.Constraint("Parallel", 32, 35),
    Sketcher.Constraint("Parallel", 34, 37),
    Sketcher.Constraint("Parallel", 35, 38),
    Sketcher.Constraint("Parallel", 37, 40),
    Sketcher.Constraint("Parallel", 38, 41),
    Sketcher.Constraint("Horizontal", 0, 2, 2, 2),
    Sketcher.Constraint("Horizontal", 3, 2, 5, 2),
    Sketcher.Constraint("Horizontal", 6, 2, 8, 2),
    Sketcher.Constraint("Horizontal", 9, 2, 11, 2),
    Sketcher.Constraint("Horizontal", 12, 2, 14, 2),
    Sketcher.Constraint("Horizontal", 15, 2, 17, 2),
    Sketcher.Constraint("Horizontal", 14, 2, 18, 2),
    Sketcher.Constraint("Horizontal", 13, 2, 19, 2),
    Sketcher.Constraint("Horizontal", 20, 2, 24, 2),
    Sketcher.Constraint("Horizontal", 19, 2, 25, 2),
    Sketcher.Constraint("Horizontal", 24, 2, 26, 2),
    Sketcher.Constraint("Horizontal", 30, 2, 32, 2),
    Sketcher.Constraint("Horizontal", 33, 2, 35, 2),
    Sketcher.Constraint("Horizontal", 36, 2, 38, 2),
    Sketcher.Constraint("Horizontal", 39, 2, 41, 2),
    Sketcher.Constraint("Equal", 3, 6),
    Sketcher.Constraint("Equal", 9, 12),
    Sketcher.Constraint("Equal", 27, 30),
    Sketcher.Constraint("Equal", 33, 36),
    Sketcher.Constraint("Equal", 5, 7),
    Sketcher.Constraint("Equal", 11, 13),
    Sketcher.Constraint("Equal", 29, 31),
    Sketcher.Constraint("Equal", 35, 37),
    Sketcher.Constraint("Angle", 1, Q("150.000001 deg")),
    Sketcher.Constraint("DistanceX", -1, 1, 18, 2, Q("12 mm")),
    Sketcher.Constraint("DistanceX", 6, 2, 2, 2, Q("2 mm")),
    Sketcher.Constraint("DistanceX", 36, 2, 32, 2, Q("2 mm")),
    Sketcher.Constraint("DistanceY", -1, 1, 0, 2, Q("29.3772 mm")),
    Sketcher.Constraint("DistanceY", 31, 2, -1, 1, Q("8.6083 mm")),
    Sketcher.Constraint("DistanceY", 30, 2, 27, 2, Q("8.6083 mm")),
    Sketcher.Constraint("DistanceY", -1, 1, 7, 2, Q("36.440731 mm")),
    Sketcher.Constraint("DistanceY", 39, 2, -1, 1, Q("29.496818 mm")),
    Sketcher.Constraint("DistanceX", -1, 1, 0, 2, Q("25.117197 mm")),
    Sketcher.Constraint("DistanceX", 12, 2, -1, 1, Q("13.765606 mm")),
    Sketcher.Constraint("DistanceX", -1, 1, 24, 2, Q("38.234394 mm")),
    Sketcher.Constraint("DistanceX", -1, 1, 30, 2, Q("25.144407 mm")),
])
pad3 = body.newObject("PartDesign::Pad", "Pad002")
pad3.Profile = sketch3
pad3.setExpression("Length", "Params.pad3_length")

doc.recompute()
